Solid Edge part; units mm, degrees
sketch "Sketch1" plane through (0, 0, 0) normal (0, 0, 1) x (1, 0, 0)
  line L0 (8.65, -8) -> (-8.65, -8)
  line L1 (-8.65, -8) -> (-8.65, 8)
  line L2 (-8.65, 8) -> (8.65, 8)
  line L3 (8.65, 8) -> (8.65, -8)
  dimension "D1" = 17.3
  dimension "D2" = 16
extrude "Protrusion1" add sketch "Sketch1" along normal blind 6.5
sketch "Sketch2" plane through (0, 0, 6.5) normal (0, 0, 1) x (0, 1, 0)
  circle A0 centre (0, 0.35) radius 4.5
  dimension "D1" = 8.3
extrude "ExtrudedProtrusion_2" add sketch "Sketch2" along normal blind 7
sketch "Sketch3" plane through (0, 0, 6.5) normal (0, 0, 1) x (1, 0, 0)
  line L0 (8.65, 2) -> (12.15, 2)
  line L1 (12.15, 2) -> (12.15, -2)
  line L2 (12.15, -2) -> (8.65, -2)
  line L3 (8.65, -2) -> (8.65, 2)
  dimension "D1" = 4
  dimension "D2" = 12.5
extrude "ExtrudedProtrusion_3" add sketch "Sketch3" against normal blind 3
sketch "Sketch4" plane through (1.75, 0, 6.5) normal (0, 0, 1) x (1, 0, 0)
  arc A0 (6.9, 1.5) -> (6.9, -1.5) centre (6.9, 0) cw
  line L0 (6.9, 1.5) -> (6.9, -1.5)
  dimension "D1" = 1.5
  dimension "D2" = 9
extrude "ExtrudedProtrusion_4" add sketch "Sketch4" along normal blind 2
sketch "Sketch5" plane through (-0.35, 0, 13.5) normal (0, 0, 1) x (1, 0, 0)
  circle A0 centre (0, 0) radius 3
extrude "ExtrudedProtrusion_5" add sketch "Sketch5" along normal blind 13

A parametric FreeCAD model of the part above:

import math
import FreeCAD as App
import Part
import Sketcher

V = App.Vector
Q = App.Units.Quantity

doc = App.newDocument("Part")
body = doc.addObject("PartDesign::Body", "Body")

# Sketch on XY plane
sketch1 = doc.addObject("Sketcher::SketchObject", "Sketch")
body.addObject(sketch1)
sketch1.AttachmentSupport = (doc.XY_Plane, [""])
sketch1.MapMode = "FlatFace"
sketch1.addGeometry([
    Part.LineSegment(V(-9, -8, 0), V(9, -8, 0)),
    Part.LineSegment(V(9, -8, 0), V(9, 8, 0)),
    Part.LineSegment(V(9, 8, 0), V(-9, 8, 0)),
    Part.LineSegment(V(-9, 8, 0), V(-9, -8, 0)),
], False)
sketch1.addConstraint([
    Sketcher.Constraint("Coincident", 0, 2, 1, 1),
    Sketcher.Constraint("Coincident", 1, 2, 2, 1),
    Sketcher.Constraint("Coincident", 2, 2, 3, 1),
    Sketcher.Constraint("Coincident", 3, 2, 0, 1),
    Sketcher.Constraint("Horizontal", 0),
    Sketcher.Constraint("Vertical", 1),
    Sketcher.Constraint("Horizontal", 2),
    Sketcher.Constraint("Vertical", 3),
    Sketcher.Constraint("Symmetric", 0, 2, 2, 2, -1, 1),
    Sketcher.Constraint("DistanceY", 1, 1, 1, 2, Q("16 mm")),
    Sketcher.Constraint("DistanceX", -1, 1, 0, 2, Q("8.65 mm")),
])
pad1 = doc.addObject("PartDesign::Pad", "Pad")
body.addObject(pad1)
pad1.Profile = sketch1
pad1.Length = 6.5

# Sketch on XY plane
sketch2 = doc.addObject("Sketcher::SketchObject", "Sketch001")
body.addObject(sketch2)
sketch2.AttachmentSupport = (doc.XY_Plane, [""])
sketch2.MapMode = "FlatFace"
sketch2.AttachmentOffset = App.Placement(V(0, 0, 6.5), App.Rotation())
sketch2.addGeometry(Part.Circle(V(-0.3, 0, 0), V(0, 0, 1), 4.5), False)
sketch2.addConstraint([
    Sketcher.Constraint("PointOnObject", 0, 3, -1),
    Sketcher.Constraint("Diameter", 0, Q("9 mm")),
    Sketcher.Constraint("DistanceX", 0, 3, -1, 1, Q("0.35 mm")),
])
pad2 = doc.addObject("PartDesign::Pad", "Pad001")
body.addObject(pad2)
pad2.Profile = sketch2
pad2.Length = 7

# Sketch on XY plane
sketch3 = doc.addObject("Sketcher::SketchObject", "Sketch002")
body.addObject(sketch3)
sketch3.AttachmentSupport = (doc.XY_Plane, [""])
sketch3.MapMode = "FlatFace"
sketch3.AttachmentOffset = App.Placement(V(0, 0, 6.5), App.Rotation())
sketch3.addGeometry([
    Part.LineSegment(V(12.2, 2, 0), V(8.7, 2, 0)),
    Part.LineSegment(V(8.7, 2, 0), V(8.7, -2, 0)),
    Part.LineSegment(V(8.7, -2, 0), V(12.2, -2, 0)),
    Part.LineSegment(V(12.2, -2, 0), V(12.2, 2, 0)),
], False)
sketch3.addConstraint([
    Sketcher.Constraint("Coincident", 0, 2, 1, 1),
    Sketcher.Constraint("Coincident", 1, 2, 2, 1),
    Sketcher.Constraint("Coincident", 2, 2, 3, 1),
    Sketcher.Constraint("Coincident", 3, 2, 0, 1),
    Sketcher.Constraint("Horizontal", 0),
    Sketcher.Constraint("Vertical", 1),
    Sketcher.Constraint("Horizontal", 2),
    Sketcher.Constraint("Vertical", 3),
    Sketcher.Constraint("DistanceY", 1, 2, 1, 1, Q("4 mm")),
    Sketcher.Constraint("DistanceX", -1, 1, 2, 2, Q("12.15 mm")),
    Sketcher.Constraint("DistanceX", 0, 2, 0, 1, Q("3.5 mm")),
    Sketcher.Constraint("DistanceY", -1, 1, 0, 2, Q("2 mm")),
])
pad3 = doc.addObject("PartDesign::Pad", "Pad002")
body.addObject(pad3)
pad3.Profile = sketch3
pad3.Length = 3
pad3.Reversed = True

# Sketch on XY plane
sketch4 = doc.addObject("Sketcher::SketchObject", "Sketch003")
body.addObject(sketch4)
sketch4.AttachmentSupport = (doc.XY_Plane, [""])
sketch4.MapMode = "FlatFace"
sketch4.AttachmentOffset = App.Placement(V(0, 0, 6.5), App.Rotation())
sketch4.addGeometry([
    Part.ArcOfCircle(Part.Circle(V(8.7, 0, 0), V(0, 0, 1), 1.5), math.radians(-90), math.radians(90)),
    Part.LineSegment(V(8.7, 1.5, 0), V(8.7, -1.5, 0)),
], False)
sketch4.addConstraint([
    Sketcher.Constraint("Coincident", 0, 1, 1, 2),
    Sketcher.Constraint("Coincident", 1, 1, 0, 2),
    Sketcher.Constraint("Vertical", 1),
    Sketcher.Constraint("PointOnObject", 0, 3, -1),
    Sketcher.Constraint("Radius", 0, Q("1.5 mm")),
    Sketcher.Constraint("DistanceX", -1, 1, 0, 3, Q("8.65 mm")),
    Sketcher.Constraint("DistanceX", -1, 1, 0, 1, Q("8.65 mm")),
])
pad4 = doc.addObject("PartDesign::Pad", "Pad003")
body.addObject(pad4)
pad4.Profile = sketch4
pad4.Length = 2

# Sketch on XY plane
sketch5 = doc.addObject("Sketcher::SketchObject", "Sketch004")
body.addObject(sketch5)
sketch5.AttachmentSupport = (doc.XY_Plane, [""])
sketch5.MapMode = "FlatFace"
sketch5.AttachmentOffset = App.Placement(V(0, 0, 13.5), App.Rotation())
sketch5.addGeometry(Part.Circle(V(-0.3, 0, 0), V(0, 0, 1), 3), False)
sketch5.addConstraint([
    Sketcher.Constraint("PointOnObject", 0, 3, -1),
    Sketcher.Constraint("Diameter", 0, Q("6 mm")),
    Sketcher.Constraint("DistanceX", 0, 3, -1, 1, Q("0.35 mm")),
])
pad5 = doc.addObject("PartDesign::Pad", "Pad004")
body.addObject(pad5)
pad5.Profile = sketch5
pad5.Length = 13

doc.recompute()
